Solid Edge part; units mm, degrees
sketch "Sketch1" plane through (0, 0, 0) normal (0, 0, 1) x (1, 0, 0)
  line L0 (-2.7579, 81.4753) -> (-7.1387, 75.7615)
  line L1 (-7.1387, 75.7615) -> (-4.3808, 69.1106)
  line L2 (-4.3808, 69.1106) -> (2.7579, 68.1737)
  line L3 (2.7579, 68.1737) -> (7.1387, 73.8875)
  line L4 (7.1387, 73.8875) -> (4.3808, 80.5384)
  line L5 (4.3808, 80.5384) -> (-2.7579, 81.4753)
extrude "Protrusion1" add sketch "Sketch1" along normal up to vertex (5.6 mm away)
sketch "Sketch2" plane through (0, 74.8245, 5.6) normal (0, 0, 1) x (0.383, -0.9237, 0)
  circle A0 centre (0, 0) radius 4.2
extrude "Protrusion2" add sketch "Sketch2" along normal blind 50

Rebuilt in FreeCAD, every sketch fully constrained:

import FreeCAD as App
import Part
import Sketcher
Q = App.Units.Quantity


def add_polygon(sketch, points):
    """Adds a closed chain of lines whose ends are joined by coincident constraints."""
    first, n = sketch.GeometryCount, len(points)
    for a, b in zip(points, points[1:] + points[:1]):
        sketch.addGeometry(Part.LineSegment(App.Vector(*a, 0), App.Vector(*b, 0)), False)
    for i in range(n):
        sketch.addConstraint(Sketcher.Constraint("Coincident", first + i, 2, first + (i + 1) % n, 1))

doc = App.newDocument("Part")
body = doc.addObject("PartDesign::Body", "Body")

sketch1 = doc.addObject("Sketcher::SketchObject", "Sketch")
body.addObject(sketch1)
sketch1.AttachmentSupport = (doc.XY_Plane, [""])
sketch1.MapMode = "FlatFace"
add_polygon(sketch1, [(4.3808, 80.5384), (-2.7579, 81.4753), (-7.1387, 75.7615), (-4.3808, 69.1106), (2.7579, 68.1737), (7.1387, 73.8875)])
sketch1.addConstraint([
    Sketcher.Constraint("Parallel", 0, 3),
    Sketcher.Constraint("Parallel", 1, 4),
    Sketcher.Constraint("Parallel", 2, 5),
    Sketcher.Constraint("Equal", 0, 1),
    Sketcher.Constraint("Equal", 1, 2),
    Sketcher.Constraint("Equal", 2, 3),
    Sketcher.Constraint("Distance", 0, Q("7.2 mm")),
    Sketcher.Constraint("DistanceX", 0, 2, -1, 1, Q("2.758 mm")),
    Sketcher.Constraint("DistanceX", -1, 1, 3, 2, Q("2.758 mm")),
    Sketcher.Constraint("DistanceX", 1, 2, 2, 2, Q("2.758 mm")),
    Sketcher.Constraint("DistanceX", 2, 2, 0, 2, Q("1.623 mm")),
    Sketcher.Constraint("DistanceY", -1, 1, 0, 2, Q("81.4753 mm")),
])
pad1 = doc.addObject("PartDesign::Pad", "Pad")
body.addObject(pad1)
pad1.Profile = sketch1
pad1.Length = 5.6

sketch2 = doc.addObject("Sketcher::SketchObject", "Sketch001")
body.addObject(sketch2)
sketch2.AttachmentSupport = (doc.XY_Plane, [""])
sketch2.MapMode = "FlatFace"
sketch2.AttachmentOffset = App.Placement(App.Vector(0, 0, 5.6), App.Rotation())
sketch2.addGeometry(Part.Circle(App.Vector(0, 74.8245, 0), App.Vector(0, 0, 1), 4.2), False)
sketch2.addConstraint([
    Sketcher.Constraint("PointOnObject", 0, 3, -2),
    Sketcher.Constraint("Diameter", 0, Q("8.4 mm")),
    Sketcher.Constraint("DistanceY", -1, 1, 0, 3, Q("74.8245 mm")),
])
pad2 = doc.addObject("PartDesign::Pad", "Pad001")
body.addObject(pad2)
pad2.Profile = sketch2
pad2.Length = 50

doc.recompute()
